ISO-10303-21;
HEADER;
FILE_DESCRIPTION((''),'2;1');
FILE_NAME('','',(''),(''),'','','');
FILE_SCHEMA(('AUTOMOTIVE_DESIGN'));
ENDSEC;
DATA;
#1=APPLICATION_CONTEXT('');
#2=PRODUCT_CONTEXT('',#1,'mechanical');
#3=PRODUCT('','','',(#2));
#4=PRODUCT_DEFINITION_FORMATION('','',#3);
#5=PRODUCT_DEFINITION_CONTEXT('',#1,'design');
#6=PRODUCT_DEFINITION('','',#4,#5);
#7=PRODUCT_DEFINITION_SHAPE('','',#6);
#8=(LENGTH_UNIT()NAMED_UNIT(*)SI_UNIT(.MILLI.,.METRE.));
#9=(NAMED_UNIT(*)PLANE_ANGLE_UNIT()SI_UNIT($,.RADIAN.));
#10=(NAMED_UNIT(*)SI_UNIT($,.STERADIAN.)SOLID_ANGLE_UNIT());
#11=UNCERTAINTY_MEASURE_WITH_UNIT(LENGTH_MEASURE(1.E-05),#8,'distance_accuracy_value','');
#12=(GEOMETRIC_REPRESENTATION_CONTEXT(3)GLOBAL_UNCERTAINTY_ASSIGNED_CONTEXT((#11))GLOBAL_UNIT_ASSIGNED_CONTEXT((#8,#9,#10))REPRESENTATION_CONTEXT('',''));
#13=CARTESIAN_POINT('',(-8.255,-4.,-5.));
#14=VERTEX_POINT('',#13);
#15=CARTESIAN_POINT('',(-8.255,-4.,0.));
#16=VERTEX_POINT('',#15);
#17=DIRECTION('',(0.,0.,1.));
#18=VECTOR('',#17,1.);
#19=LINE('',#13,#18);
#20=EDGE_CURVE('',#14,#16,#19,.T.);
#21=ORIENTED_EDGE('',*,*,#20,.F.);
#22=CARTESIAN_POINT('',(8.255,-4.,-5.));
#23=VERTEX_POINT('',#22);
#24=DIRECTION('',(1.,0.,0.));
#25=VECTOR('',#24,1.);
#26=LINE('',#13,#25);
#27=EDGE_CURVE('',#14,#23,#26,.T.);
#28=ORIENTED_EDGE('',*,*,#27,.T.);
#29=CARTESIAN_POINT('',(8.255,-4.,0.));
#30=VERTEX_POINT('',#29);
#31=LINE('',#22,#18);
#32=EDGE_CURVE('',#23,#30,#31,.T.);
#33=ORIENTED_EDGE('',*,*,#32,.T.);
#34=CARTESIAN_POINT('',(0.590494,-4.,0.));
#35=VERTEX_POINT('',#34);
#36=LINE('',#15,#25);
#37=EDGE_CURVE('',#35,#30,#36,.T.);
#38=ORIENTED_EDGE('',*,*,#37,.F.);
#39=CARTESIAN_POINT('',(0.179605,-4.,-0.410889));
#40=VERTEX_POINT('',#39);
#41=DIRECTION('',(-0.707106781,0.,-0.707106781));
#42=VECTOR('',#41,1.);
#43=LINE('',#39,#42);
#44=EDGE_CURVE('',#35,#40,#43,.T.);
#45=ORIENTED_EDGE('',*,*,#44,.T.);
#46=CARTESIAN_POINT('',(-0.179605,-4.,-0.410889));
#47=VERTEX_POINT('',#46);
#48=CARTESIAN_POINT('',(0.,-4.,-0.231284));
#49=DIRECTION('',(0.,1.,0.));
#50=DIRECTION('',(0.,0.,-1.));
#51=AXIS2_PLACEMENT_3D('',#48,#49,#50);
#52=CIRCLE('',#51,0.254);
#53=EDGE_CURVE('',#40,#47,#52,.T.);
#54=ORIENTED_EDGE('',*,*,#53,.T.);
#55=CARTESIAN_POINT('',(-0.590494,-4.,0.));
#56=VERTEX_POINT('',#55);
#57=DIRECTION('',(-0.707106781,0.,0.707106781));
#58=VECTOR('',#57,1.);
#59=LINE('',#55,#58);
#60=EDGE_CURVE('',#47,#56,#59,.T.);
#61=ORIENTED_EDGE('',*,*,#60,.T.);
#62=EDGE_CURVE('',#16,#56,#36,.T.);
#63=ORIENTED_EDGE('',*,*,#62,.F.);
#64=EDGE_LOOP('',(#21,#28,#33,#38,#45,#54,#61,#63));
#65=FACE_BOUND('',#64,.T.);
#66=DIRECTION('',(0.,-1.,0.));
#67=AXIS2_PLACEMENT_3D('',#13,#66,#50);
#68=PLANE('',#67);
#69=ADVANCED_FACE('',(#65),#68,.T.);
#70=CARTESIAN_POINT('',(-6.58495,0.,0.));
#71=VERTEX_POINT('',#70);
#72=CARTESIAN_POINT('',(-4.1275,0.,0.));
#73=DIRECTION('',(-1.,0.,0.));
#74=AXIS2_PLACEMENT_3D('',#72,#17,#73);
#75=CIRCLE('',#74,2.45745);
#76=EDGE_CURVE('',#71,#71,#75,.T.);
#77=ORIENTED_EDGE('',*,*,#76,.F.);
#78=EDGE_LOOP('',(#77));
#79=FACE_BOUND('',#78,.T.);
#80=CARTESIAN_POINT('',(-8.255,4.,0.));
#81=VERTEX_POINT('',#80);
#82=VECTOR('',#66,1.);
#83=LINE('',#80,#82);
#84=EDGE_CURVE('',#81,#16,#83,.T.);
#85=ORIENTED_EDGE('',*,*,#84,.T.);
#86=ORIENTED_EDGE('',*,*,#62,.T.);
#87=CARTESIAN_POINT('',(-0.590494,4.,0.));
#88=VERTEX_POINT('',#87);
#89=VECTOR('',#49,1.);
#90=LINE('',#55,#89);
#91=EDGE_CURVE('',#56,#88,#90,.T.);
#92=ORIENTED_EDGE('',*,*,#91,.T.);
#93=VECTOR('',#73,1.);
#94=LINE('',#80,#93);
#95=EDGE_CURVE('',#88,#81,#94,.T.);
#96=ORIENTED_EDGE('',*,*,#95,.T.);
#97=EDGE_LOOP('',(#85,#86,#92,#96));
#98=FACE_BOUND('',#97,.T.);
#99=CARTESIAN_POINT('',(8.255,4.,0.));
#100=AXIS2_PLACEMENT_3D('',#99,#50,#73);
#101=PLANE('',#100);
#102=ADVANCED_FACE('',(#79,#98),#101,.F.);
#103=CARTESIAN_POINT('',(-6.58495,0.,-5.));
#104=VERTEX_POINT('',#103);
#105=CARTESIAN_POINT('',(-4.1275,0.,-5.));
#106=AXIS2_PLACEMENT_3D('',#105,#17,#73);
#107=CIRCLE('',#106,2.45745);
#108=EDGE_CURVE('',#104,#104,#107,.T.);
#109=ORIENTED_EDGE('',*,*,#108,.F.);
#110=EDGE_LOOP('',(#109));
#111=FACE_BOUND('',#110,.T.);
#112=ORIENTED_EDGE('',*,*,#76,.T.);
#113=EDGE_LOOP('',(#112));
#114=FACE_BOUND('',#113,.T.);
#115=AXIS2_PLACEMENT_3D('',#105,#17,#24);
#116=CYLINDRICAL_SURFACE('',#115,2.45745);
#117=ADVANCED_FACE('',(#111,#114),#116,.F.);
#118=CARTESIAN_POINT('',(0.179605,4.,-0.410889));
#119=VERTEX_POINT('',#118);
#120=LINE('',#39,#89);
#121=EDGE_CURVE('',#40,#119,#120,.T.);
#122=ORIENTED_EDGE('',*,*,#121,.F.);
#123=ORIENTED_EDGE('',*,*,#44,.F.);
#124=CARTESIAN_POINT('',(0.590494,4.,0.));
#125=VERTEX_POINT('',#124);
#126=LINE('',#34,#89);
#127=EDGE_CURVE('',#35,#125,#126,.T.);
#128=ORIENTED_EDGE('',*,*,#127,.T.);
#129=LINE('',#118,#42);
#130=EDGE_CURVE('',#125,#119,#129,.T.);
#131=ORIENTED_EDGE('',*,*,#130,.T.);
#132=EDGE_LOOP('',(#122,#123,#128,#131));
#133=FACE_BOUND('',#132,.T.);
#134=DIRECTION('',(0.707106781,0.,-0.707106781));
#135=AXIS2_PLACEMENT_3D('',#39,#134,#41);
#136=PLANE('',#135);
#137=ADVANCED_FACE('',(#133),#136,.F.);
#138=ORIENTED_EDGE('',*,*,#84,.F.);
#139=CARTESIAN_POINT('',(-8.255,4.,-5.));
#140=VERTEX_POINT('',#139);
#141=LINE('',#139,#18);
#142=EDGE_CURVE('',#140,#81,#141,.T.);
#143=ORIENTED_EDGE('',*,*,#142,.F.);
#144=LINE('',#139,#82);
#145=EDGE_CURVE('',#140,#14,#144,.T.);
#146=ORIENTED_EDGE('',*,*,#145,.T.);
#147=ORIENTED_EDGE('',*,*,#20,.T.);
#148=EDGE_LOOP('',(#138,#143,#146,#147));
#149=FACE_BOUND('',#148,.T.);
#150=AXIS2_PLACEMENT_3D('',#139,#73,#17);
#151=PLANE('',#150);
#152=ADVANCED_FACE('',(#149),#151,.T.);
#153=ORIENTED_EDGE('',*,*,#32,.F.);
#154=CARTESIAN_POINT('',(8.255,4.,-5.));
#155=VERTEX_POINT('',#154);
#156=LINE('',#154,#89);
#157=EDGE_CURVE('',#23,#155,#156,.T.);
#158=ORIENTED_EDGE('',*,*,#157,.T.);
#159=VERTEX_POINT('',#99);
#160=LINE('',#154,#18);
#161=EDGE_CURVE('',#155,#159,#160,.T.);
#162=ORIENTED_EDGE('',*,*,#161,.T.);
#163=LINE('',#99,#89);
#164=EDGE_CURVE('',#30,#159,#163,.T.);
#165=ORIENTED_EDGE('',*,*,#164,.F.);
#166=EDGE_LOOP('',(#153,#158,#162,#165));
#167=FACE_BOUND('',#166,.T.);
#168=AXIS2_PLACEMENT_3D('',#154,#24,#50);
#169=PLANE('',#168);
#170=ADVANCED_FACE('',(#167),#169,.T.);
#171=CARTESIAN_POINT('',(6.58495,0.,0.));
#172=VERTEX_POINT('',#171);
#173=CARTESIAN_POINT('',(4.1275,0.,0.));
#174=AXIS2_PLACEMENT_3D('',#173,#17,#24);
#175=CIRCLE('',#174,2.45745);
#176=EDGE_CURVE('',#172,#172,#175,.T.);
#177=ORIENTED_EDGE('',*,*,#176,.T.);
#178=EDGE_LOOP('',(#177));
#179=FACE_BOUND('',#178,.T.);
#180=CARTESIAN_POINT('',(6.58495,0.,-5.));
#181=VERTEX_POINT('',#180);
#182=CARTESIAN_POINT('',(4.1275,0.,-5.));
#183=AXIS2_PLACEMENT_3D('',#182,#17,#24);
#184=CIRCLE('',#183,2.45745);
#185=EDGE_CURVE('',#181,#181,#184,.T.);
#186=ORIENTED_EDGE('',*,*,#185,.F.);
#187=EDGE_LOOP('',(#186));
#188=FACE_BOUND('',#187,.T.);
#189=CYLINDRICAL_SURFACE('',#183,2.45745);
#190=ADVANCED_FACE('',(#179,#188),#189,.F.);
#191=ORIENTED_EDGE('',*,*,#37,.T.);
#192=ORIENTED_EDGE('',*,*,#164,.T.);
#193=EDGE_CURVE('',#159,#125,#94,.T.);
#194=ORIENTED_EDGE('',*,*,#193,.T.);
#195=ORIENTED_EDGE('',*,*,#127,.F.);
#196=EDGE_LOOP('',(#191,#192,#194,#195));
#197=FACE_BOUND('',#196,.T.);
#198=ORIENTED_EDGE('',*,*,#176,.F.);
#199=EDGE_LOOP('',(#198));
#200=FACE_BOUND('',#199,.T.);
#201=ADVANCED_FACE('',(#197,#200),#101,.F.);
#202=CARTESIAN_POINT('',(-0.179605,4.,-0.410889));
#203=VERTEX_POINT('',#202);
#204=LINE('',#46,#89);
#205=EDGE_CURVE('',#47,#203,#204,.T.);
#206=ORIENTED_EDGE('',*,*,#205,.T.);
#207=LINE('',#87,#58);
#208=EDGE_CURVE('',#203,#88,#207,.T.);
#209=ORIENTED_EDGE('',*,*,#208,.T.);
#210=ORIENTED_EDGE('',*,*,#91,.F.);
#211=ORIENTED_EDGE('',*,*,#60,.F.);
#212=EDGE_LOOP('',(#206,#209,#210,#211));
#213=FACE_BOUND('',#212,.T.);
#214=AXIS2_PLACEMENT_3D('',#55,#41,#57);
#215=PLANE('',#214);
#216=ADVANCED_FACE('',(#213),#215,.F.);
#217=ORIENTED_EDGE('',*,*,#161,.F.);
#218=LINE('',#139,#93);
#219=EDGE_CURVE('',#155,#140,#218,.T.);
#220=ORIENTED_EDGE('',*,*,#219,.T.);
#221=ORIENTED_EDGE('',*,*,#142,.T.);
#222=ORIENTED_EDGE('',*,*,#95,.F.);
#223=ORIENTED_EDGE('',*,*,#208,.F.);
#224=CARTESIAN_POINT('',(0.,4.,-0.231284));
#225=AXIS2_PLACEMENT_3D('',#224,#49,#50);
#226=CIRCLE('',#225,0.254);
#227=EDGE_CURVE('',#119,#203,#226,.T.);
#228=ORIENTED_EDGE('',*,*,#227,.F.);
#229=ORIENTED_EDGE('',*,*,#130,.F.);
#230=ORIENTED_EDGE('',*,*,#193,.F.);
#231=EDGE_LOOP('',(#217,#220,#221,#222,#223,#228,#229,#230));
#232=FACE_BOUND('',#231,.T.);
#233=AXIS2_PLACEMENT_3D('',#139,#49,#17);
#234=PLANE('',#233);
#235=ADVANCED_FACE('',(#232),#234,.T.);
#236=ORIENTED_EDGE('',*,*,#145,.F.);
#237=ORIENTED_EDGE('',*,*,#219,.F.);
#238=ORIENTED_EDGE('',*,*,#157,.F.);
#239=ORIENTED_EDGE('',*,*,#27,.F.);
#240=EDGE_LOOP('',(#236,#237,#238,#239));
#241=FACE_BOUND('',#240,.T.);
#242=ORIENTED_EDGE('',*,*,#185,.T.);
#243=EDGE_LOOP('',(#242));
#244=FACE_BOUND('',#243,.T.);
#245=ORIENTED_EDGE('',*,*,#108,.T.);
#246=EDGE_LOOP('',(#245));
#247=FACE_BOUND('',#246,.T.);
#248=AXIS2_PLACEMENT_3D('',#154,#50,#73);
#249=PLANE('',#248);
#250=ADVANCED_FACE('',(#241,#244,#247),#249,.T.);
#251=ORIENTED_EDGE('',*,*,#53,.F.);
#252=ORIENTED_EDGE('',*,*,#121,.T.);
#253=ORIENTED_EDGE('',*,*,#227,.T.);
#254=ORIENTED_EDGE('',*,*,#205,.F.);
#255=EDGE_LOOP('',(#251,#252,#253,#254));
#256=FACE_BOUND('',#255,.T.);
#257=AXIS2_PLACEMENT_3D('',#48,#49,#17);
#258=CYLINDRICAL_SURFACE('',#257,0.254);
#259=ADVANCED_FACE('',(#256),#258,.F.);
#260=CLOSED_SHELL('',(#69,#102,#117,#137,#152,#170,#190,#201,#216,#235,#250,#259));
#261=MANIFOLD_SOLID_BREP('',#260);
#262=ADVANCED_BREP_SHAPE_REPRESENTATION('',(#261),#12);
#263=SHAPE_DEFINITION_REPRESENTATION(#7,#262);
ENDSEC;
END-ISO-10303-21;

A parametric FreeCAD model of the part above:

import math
import FreeCAD as App
import Part
import Sketcher
Q = App.Units.Quantity

doc = App.newDocument("Part")
body = doc.addObject("PartDesign::Body", "Body")

sketch1 = body.newObject("Sketcher::SketchObject", "Sketch")
sketch1.AttachmentSupport = (doc.getObject("XY_Plane"), [""])
sketch1.MapMode = "FlatFace"
sketch1.addGeometry([
    Part.LineSegment(App.Vector(-8.3, 4, 0), App.Vector(-8.3, -4, 0)),
    Part.LineSegment(App.Vector(-8.3, -4, 0), App.Vector(8.3, -4, 0)),
    Part.LineSegment(App.Vector(8.3, -4, 0), App.Vector(8.3, 4, 0)),
    Part.LineSegment(App.Vector(8.3, 4, 0), App.Vector(-8.3, 4, 0)),
    Part.Circle(App.Vector(-4.1, 0, 0), App.Vector(0, 0, 1), 2.5),
    Part.Circle(App.Vector(4.1, 0, 0), App.Vector(0, 0, 1), 2.5),
], False)
sketch1.addConstraint([
    Sketcher.Constraint("Coincident", 0, 2, 1, 1),
    Sketcher.Constraint("Coincident", 1, 2, 2, 1),
    Sketcher.Constraint("Coincident", 2, 2, 3, 1),
    Sketcher.Constraint("Coincident", 3, 2, 0, 1),
    Sketcher.Constraint("Vertical", 0),
    Sketcher.Constraint("Horizontal", 1),
    Sketcher.Constraint("Vertical", 2),
    Sketcher.Constraint("Horizontal", 3),
    Sketcher.Constraint("Equal", 4, 5),
    Sketcher.Constraint("Symmetric", 4, 3, 5, 3, -1, 1),
    Sketcher.Constraint("Symmetric", 0, 2, 2, 2, -1, 1),
    Sketcher.Constraint("PointOnObject", 4, 3, -1),
    Sketcher.Constraint("DistanceY", 0, 2, 0, 1, Q("8 mm")),
    Sketcher.Constraint("Diameter", 4, Q("4.9149 mm")),
    Sketcher.Constraint("DistanceX", 1, 1, 1, 2, Q("16.51 mm")),
    Sketcher.Constraint("DistanceX", 4, 3, 5, 3, Q("8.255 mm")),
])
pad1 = body.newObject("PartDesign::Pad", "Pad")
pad1.Profile = sketch1
pad1.Length = 5
pad1.Reversed = True

sketch2 = body.newObject("Sketcher::SketchObject", "Sketch001")
sketch2.AttachmentSupport = (doc.getObject("XZ_Plane"), [""])
sketch2.MapMode = "FlatFace"
sketch2.addGeometry([
    Part.LineSegment(App.Vector(-0.18, -0.41, 0), App.Vector(-0.59, 0, 0)),
    Part.LineSegment(App.Vector(-0.59, 0, 0), App.Vector(0.59, 0, 0)),
    Part.LineSegment(App.Vector(0.59, 0, 0), App.Vector(0.18, -0.41, 0)),
    Part.ArcOfCircle(Part.Circle(App.Vector(0, -0.23, 0), App.Vector(0, 0, 1), 0.25), math.radians(-135), math.radians(-45)),
], False)
sketch2.addConstraint([
    Sketcher.Constraint("Coincident", 0, 2, 1, 1),
    Sketcher.Constraint("Coincident", 1, 2, 2, 1),
    Sketcher.Constraint("Tangent", 2, 2, 3, 2),
    Sketcher.Constraint("Tangent", 3, 1, 0, 1),
    Sketcher.Constraint("Horizontal", 1),
    Sketcher.Constraint("Symmetric", 0, 2, 1, 2, -1, 1),
    Sketcher.Constraint("PointOnObject", 3, 3, -2),
    Sketcher.Constraint("Perpendicular", 0, 2),
    Sketcher.Constraint("Radius", 3, Q("0.254 mm")),
    Sketcher.Constraint("DistanceX", 0, 2, 2, 2, Q("0.770099 mm")),
])
pocket1 = body.newObject("PartDesign::Pocket", "Pocket")
pocket1.Profile = sketch2
pocket1.Type = "ThroughAll"
pocket1.Midplane = True

doc.recompute()
